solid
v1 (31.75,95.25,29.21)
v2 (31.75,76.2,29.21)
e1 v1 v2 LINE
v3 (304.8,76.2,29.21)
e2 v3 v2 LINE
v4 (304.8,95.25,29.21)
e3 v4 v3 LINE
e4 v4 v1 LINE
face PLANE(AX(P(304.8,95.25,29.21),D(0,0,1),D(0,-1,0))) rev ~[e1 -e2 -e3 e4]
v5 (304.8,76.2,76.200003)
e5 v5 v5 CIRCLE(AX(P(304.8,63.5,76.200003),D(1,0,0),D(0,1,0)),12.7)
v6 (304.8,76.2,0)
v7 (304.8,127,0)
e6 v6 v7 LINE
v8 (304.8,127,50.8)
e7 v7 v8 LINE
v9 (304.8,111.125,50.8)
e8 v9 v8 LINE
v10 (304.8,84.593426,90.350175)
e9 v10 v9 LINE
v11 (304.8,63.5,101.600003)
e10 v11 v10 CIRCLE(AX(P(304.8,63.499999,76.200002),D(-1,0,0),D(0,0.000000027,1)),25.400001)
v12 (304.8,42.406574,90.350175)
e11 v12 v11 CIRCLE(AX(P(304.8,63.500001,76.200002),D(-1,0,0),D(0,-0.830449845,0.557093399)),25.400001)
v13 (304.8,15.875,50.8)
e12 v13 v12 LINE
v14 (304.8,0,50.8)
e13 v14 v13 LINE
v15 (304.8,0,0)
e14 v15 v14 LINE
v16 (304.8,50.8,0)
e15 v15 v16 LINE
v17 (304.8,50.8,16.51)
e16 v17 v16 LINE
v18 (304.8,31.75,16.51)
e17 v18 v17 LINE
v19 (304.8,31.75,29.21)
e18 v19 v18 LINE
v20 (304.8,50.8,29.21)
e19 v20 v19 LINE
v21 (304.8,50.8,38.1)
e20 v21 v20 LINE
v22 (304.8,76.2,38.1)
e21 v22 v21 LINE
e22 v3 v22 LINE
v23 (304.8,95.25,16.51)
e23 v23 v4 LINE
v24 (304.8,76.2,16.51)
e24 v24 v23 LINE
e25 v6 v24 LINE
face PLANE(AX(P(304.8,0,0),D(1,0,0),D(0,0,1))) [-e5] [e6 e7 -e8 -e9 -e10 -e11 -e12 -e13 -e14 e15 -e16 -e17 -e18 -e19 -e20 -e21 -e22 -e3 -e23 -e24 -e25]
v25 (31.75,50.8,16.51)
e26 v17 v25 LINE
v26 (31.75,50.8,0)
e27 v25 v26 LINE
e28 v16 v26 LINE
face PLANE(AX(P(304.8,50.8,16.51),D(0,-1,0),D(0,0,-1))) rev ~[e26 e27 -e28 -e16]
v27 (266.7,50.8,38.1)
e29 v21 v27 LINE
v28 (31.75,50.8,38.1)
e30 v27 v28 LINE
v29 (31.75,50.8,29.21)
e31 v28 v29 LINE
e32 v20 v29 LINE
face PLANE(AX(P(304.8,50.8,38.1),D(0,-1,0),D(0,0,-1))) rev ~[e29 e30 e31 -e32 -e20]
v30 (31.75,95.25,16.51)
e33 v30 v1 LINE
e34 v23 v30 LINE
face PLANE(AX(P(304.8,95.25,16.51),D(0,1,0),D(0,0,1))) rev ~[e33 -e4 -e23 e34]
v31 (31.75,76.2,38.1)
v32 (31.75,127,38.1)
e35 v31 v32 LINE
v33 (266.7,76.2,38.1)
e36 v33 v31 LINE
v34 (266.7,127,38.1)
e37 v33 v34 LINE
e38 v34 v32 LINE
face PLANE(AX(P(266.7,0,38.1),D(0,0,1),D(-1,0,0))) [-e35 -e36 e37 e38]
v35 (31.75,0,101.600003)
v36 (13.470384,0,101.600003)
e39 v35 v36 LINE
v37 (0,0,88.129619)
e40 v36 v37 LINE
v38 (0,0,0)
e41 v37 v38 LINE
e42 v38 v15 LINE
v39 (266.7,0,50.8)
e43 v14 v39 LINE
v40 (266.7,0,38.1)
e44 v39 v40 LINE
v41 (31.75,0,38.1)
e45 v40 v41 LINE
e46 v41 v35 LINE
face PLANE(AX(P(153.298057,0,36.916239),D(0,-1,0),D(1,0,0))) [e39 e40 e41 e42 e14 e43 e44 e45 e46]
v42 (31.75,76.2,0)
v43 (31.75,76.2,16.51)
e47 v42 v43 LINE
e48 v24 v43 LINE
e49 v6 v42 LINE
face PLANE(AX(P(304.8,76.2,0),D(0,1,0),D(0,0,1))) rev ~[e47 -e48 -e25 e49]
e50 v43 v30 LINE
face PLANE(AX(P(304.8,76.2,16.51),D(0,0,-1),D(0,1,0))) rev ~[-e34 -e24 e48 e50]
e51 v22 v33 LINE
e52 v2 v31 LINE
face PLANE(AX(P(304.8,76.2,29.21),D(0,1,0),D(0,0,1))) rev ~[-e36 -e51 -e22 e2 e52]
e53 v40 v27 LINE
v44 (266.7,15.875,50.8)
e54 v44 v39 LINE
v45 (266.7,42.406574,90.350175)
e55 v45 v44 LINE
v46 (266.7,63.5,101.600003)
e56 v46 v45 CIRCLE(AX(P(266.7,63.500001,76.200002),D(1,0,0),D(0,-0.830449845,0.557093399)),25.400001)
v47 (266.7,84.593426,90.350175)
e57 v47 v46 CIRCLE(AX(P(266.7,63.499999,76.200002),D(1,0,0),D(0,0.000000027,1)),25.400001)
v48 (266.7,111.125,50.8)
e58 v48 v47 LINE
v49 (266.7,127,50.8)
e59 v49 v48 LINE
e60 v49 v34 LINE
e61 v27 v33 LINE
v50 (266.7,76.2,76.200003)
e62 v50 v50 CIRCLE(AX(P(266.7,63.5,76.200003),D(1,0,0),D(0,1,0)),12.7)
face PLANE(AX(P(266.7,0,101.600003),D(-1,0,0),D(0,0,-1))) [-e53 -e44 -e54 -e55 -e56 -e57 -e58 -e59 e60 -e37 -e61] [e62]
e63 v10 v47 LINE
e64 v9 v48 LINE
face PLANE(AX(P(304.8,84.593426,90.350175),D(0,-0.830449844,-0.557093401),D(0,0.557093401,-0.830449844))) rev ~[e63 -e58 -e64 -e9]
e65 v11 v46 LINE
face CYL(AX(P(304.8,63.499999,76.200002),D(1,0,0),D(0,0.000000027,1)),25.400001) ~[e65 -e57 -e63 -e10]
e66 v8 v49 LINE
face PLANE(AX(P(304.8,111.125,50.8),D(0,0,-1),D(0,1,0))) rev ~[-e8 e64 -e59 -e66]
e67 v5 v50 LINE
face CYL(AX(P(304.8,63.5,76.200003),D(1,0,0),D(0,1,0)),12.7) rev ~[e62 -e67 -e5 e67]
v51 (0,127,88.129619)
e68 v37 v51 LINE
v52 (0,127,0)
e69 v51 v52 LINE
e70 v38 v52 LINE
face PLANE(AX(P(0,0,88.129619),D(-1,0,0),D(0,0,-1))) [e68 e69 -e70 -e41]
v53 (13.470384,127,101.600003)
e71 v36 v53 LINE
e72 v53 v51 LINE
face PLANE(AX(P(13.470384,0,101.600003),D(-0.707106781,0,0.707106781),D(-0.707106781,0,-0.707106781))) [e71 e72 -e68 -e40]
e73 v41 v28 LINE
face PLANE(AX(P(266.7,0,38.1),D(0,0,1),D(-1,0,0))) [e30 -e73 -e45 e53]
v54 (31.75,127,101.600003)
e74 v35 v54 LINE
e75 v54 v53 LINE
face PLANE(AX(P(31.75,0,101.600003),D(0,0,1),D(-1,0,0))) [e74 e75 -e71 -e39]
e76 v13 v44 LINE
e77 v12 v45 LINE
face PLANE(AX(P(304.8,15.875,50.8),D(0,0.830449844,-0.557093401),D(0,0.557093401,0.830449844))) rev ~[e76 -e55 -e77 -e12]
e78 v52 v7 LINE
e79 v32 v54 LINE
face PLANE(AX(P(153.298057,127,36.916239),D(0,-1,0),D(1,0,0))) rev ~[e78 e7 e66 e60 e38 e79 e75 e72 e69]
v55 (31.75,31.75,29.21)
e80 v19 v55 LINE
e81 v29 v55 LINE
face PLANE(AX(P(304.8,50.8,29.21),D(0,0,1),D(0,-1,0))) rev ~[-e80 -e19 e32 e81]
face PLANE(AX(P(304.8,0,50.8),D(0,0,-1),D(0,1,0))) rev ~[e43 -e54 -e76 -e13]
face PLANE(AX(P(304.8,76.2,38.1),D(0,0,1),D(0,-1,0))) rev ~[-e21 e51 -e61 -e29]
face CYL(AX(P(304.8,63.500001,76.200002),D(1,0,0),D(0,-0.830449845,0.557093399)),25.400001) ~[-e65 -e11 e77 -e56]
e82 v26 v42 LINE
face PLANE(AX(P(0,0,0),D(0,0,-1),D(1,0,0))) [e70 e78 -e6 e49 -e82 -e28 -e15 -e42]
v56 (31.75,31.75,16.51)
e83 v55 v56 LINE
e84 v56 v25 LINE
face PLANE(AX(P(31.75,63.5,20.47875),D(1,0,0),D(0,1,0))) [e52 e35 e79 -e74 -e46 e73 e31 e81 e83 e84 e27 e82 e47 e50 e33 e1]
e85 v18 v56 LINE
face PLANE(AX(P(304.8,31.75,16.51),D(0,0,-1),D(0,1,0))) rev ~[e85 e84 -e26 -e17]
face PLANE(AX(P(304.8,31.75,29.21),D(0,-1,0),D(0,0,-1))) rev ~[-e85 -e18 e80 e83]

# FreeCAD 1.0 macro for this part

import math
import FreeCAD as App
import Part
import Sketcher
Q = App.Units.Quantity

doc = App.newDocument("Part")
params = doc.addObject("Spreadsheet::Sheet", "Params")
for row, (alias, value) in enumerate([
    ("sketch1_width", "12 in"),
    ("sketch1_height", "4.0000001 in"),
    ("sketch1_width2", "1.5 in"),
    ("sketch1_height2", "2.5000001 in"),
    ("sketch1_width3", "9.25 in"),
    ("pad1_length", "5 in"),
    ("sketch2_width", "1 in"),
    ("sketch2_height", "0.5 in"),
    ("sketch2_width2", "0.75 in"),
    ("sketch2_height2", "0.65 in"),
    ("sketch2_height3", "0.35 in"),
    ("pocket1_length", "10.75 in"),
    ("sketch3_diameter", "1 in"),
    ("pocket2_length", "2 in"),
    ("sketch4_radius", "1 in"),
    ("sketch4_height", "2.0000001 in"),
    ("sketch4_width", "2.5 in"),
    ("sketch4_width2", "0.625 in"),
    ("pocket3_length", "2 in"),
], start=1):
    params.set(f"A{row}", alias)
    params.set(f"B{row}", "=" + value)
    params.setAlias(f"B{row}", alias)

body = doc.addObject("PartDesign::Body", "Body")

sketch1 = doc.addObject("Sketcher::SketchObject", "Sketch")
body.addObject(sketch1)
sketch1.AttachmentSupport = (doc.XZ_Plane, [""])
sketch1.MapMode = "FlatFace"
sketch1.addGeometry(Part.LineSegment(App.Vector(0, 88.129619, 0), App.Vector(0, 0, 0)), False)
sketch1.addGeometry(Part.LineSegment(App.Vector(0, 0, 0), App.Vector(304.8, 0, 0)), False)
sketch1.addGeometry(Part.LineSegment(App.Vector(304.8, 0, 0), App.Vector(304.8, 101.600003, 0)), False)
sketch1.addGeometry(Part.LineSegment(App.Vector(304.8, 101.600003, 0), App.Vector(266.7, 101.600003, 0)), False)
sketch1.addGeometry(Part.LineSegment(App.Vector(266.7, 101.600003, 0), App.Vector(266.7, 38.1, 0)), False)
sketch1.addGeometry(Part.LineSegment(App.Vector(266.7, 38.1, 0), App.Vector(31.75, 38.1, 0)), False)
sketch1.addGeometry(Part.LineSegment(App.Vector(31.75, 38.1, 0), App.Vector(31.75, 101.600003, 0)), False)
sketch1.addGeometry(Part.LineSegment(App.Vector(31.75, 101.600003, 0), App.Vector(13.470384, 101.600003, 0)), False)
sketch1.addGeometry(Part.LineSegment(App.Vector(13.470384, 101.600003, 0), App.Vector(0, 88.129619, 0)), False)
sketch1.addConstraint(Sketcher.Constraint("Coincident", 0, 2, 1, 1))
sketch1.addConstraint(Sketcher.Constraint("Coincident", 1, 2, 2, 1))
sketch1.addConstraint(Sketcher.Constraint("Coincident", 2, 2, 3, 1))
sketch1.addConstraint(Sketcher.Constraint("Coincident", 3, 2, 4, 1))
sketch1.addConstraint(Sketcher.Constraint("Coincident", 4, 2, 5, 1))
sketch1.addConstraint(Sketcher.Constraint("Coincident", 5, 2, 6, 1))
sketch1.addConstraint(Sketcher.Constraint("Coincident", 6, 2, 7, 1))
sketch1.addConstraint(Sketcher.Constraint("Coincident", 7, 2, 8, 1))
sketch1.addConstraint(Sketcher.Constraint("Coincident", 8, 2, 0, 1))
sketch1.addConstraint(Sketcher.Constraint("Vertical", 0))
sketch1.addConstraint(Sketcher.Constraint("Horizontal", 1))
sketch1.addConstraint(Sketcher.Constraint("Vertical", 2))
sketch1.addConstraint(Sketcher.Constraint("Horizontal", 3))
sketch1.addConstraint(Sketcher.Constraint("Vertical", 4))
sketch1.addConstraint(Sketcher.Constraint("Horizontal", 5))
sketch1.addConstraint(Sketcher.Constraint("Vertical", 6))
sketch1.addConstraint(Sketcher.Constraint("Horizontal", 7))
sketch1.addConstraint(Sketcher.Constraint("Coincident", 0, 2, -1, 1))
sketch1.addConstraint(Sketcher.Constraint("Horizontal", 3, 2, 6, 2))
sketch1.addConstraint(Sketcher.Constraint("DistanceX", 1, 1, 1, 2, Q("12 in")))
sketch1.addConstraint(Sketcher.Constraint("DistanceY", 2, 1, 2, 2, Q("4.0000001 in")))
sketch1.addConstraint(Sketcher.Constraint("DistanceX", 3, 2, 3, 1, Q("1.5 in")))
sketch1.addConstraint(Sketcher.Constraint("DistanceY", 4, 2, 4, 1, Q("2.5000001 in")))
sketch1.addConstraint(Sketcher.Constraint("Angle", 8, Q("-135 deg")))
sketch1.addConstraint(Sketcher.Constraint("DistanceX", 5, 2, 5, 1, Q("9.25 in")))
sketch1.addConstraint(Sketcher.Constraint("Distance", 8, Q("0.75 in")))
sketch1.setExpression("Constraints[19]", "Params.sketch1_width")
sketch1.setExpression("Constraints[20]", "Params.sketch1_height")
sketch1.setExpression("Constraints[21]", "Params.sketch1_width2")
sketch1.setExpression("Constraints[22]", "Params.sketch1_height2")
sketch1.setExpression("Constraints[24]", "Params.sketch1_width3")
pad1 = doc.addObject("PartDesign::Pad", "Pad")
body.addObject(pad1)
pad1.Profile = sketch1
pad1.setExpression("Length", "Params.pad1_length")
pad1.Reversed = True

sketch2 = doc.addObject("Sketcher::SketchObject", "Sketch001")
body.addObject(sketch2)
sketch2.AttachmentSupport = (doc.YZ_Plane, [""])
sketch2.MapMode = "FlatFace"
sketch2.AttachmentOffset = App.Placement(App.Vector(0, 0, 12 * 25.4), App.Rotation())
sketch2.addGeometry(Part.LineSegment(App.Vector(50.8, 16.51, 0), App.Vector(50.8, 0, 0)), False)
sketch2.addGeometry(Part.LineSegment(App.Vector(50.8, 0, 0), App.Vector(76.2, 0, 0)), False)
sketch2.addGeometry(Part.LineSegment(App.Vector(76.2, 0, 0), App.Vector(76.2, 16.51, 0)), False)
sketch2.addGeometry(Part.LineSegment(App.Vector(76.2, 16.51, 0), App.Vector(95.25, 16.51, 0)), False)
sketch2.addGeometry(Part.LineSegment(App.Vector(95.25, 16.51, 0), App.Vector(95.25, 29.21, 0)), False)
sketch2.addGeometry(Part.LineSegment(App.Vector(95.25, 29.21, 0), App.Vector(76.2, 29.21, 0)), False)
sketch2.addGeometry(Part.LineSegment(App.Vector(76.2, 29.21, 0), App.Vector(76.2, 38.1, 0)), False)
sketch2.addGeometry(Part.LineSegment(App.Vector(76.2, 38.1, 0), App.Vector(50.8, 38.1, 0)), False)
sketch2.addGeometry(Part.LineSegment(App.Vector(50.8, 38.1, 0), App.Vector(50.8, 29.21, 0)), False)
sketch2.addGeometry(Part.LineSegment(App.Vector(50.8, 29.21, 0), App.Vector(31.75, 29.21, 0)), False)
sketch2.addGeometry(Part.LineSegment(App.Vector(31.75, 29.21, 0), App.Vector(31.75, 16.51, 0)), False)
sketch2.addGeometry(Part.LineSegment(App.Vector(31.75, 16.51, 0), App.Vector(50.8, 16.51, 0)), False)
sketch2.addConstraint(Sketcher.Constraint("Coincident", 0, 2, 1, 1))
sketch2.addConstraint(Sketcher.Constraint("Coincident", 1, 2, 2, 1))
sketch2.addConstraint(Sketcher.Constraint("Coincident", 2, 2, 3, 1))
sketch2.addConstraint(Sketcher.Constraint("Coincident", 3, 2, 4, 1))
sketch2.addConstraint(Sketcher.Constraint("Coincident", 4, 2, 5, 1))
sketch2.addConstraint(Sketcher.Constraint("Coincident", 5, 2, 6, 1))
sketch2.addConstraint(Sketcher.Constraint("Coincident", 6, 2, 7, 1))
sketch2.addConstraint(Sketcher.Constraint("Coincident", 7, 2, 8, 1))
sketch2.addConstraint(Sketcher.Constraint("Coincident", 8, 2, 9, 1))
sketch2.addConstraint(Sketcher.Constraint("Coincident", 9, 2, 10, 1))
sketch2.addConstraint(Sketcher.Constraint("Coincident", 10, 2, 11, 1))
sketch2.addConstraint(Sketcher.Constraint("Coincident", 11, 2, 0, 1))
sketch2.addConstraint(Sketcher.Constraint("Vertical", 0))
sketch2.addConstraint(Sketcher.Constraint("Horizontal", 1))
sketch2.addConstraint(Sketcher.Constraint("Vertical", 2))
sketch2.addConstraint(Sketcher.Constraint("Horizontal", 3))
sketch2.addConstraint(Sketcher.Constraint("Vertical", 4))
sketch2.addConstraint(Sketcher.Constraint("Horizontal", 5))
sketch2.addConstraint(Sketcher.Constraint("Vertical", 6))
sketch2.addConstraint(Sketcher.Constraint("Horizontal", 7))
sketch2.addConstraint(Sketcher.Constraint("Vertical", 8))
sketch2.addConstraint(Sketcher.Constraint("Horizontal", 9))
sketch2.addConstraint(Sketcher.Constraint("Vertical", 10))
sketch2.addConstraint(Sketcher.Constraint("Horizontal", 11))
sketch2.addConstraint(Sketcher.Constraint("PointOnObject", 0, 2, -1))
sketch2.addConstraint(Sketcher.Constraint("Horizontal", 5, 2, 8, 2))
sketch2.addConstraint(Sketcher.Constraint("Horizontal", 3, 2, 10, 2))
sketch2.addConstraint(Sketcher.Constraint("Vertical", 2, 2, 5, 2))
sketch2.addConstraint(Sketcher.Constraint("Vertical", 0, 2, 7, 2))
sketch2.addConstraint(Sketcher.Constraint("Equal", 5, 9))
sketch2.addConstraint(Sketcher.Constraint("DistanceX", 1, 1, 1, 2, Q("1 in")))
sketch2.addConstraint(Sketcher.Constraint("DistanceY", 4, 1, 4, 2, Q("0.5 in")))
sketch2.addConstraint(Sketcher.Constraint("DistanceX", -1, 1, 0, 2, Q("2 in")))
sketch2.addConstraint(Sketcher.Constraint("DistanceX", 3, 1, 3, 2, Q("0.75 in")))
sketch2.addConstraint(Sketcher.Constraint("DistanceY", 0, 2, 0, 1, Q("0.65 in")))
sketch2.addConstraint(Sketcher.Constraint("DistanceY", 6, 1, 6, 2, Q("0.35 in")))
sketch2.setExpression("Constraints[30]", "Params.sketch2_width")
sketch2.setExpression("Constraints[31]", "Params.sketch2_height")
sketch2.setExpression("Constraints[33]", "Params.sketch2_width2")
sketch2.setExpression("Constraints[34]", "Params.sketch2_height2")
sketch2.setExpression("Constraints[35]", "Params.sketch2_height3")
pocket1 = doc.addObject("PartDesign::Pocket", "Pocket")
body.addObject(pocket1)
pocket1.Profile = sketch2
pocket1.setExpression("Length", "Params.pocket1_length")

sketch3 = doc.addObject("Sketcher::SketchObject", "Sketch002")
body.addObject(sketch3)
sketch3.AttachmentSupport = (doc.YZ_Plane, [""])
sketch3.MapMode = "FlatFace"
sketch3.AttachmentOffset = App.Placement(App.Vector(0, 0, 12 * 25.4), App.Rotation())
sketch3.addGeometry(Part.Circle(App.Vector(63.5, 76.200003, 0), App.Vector(0, 0, 1), 12.7), False)
sketch3.addConstraint(Sketcher.Constraint("Diameter", 0, Q("1 in")))
sketch3.addConstraint(Sketcher.Constraint("DistanceY", -1, 1, 0, 3, Q("3.0000001 in")))
sketch3.addConstraint(Sketcher.Constraint("DistanceX", -1, 1, 0, 3, Q("2.5 in")))
sketch3.setExpression("Constraints[0]", "Params.sketch3_diameter")
pocket2 = doc.addObject("PartDesign::Pocket", "Pocket001")
body.addObject(pocket2)
pocket2.Profile = sketch3
pocket2.setExpression("Length", "Params.pocket2_length")

sketch4 = doc.addObject("Sketcher::SketchObject", "Sketch003")
body.addObject(sketch4)
sketch4.AttachmentSupport = (doc.YZ_Plane, [""])
sketch4.MapMode = "FlatFace"
sketch4.AttachmentOffset = App.Placement(App.Vector(0, 0, 12 * 25.4), App.Rotation())
sketch4.addGeometry(Part.LineSegment(App.Vector(0, 101.600003, 0), App.Vector(0, 50.8, 0)), False)
sketch4.addGeometry(Part.LineSegment(App.Vector(0, 50.8, 0), App.Vector(15.875, 50.8, 0)), False)
sketch4.addGeometry(Part.LineSegment(App.Vector(15.875, 50.8, 0), App.Vector(42.406574, 90.350175, 0)), False)
sketch4.addGeometry(Part.ArcOfCircle(Part.Circle(App.Vector(63.500001, 76.200002, 0), App.Vector(0, 0, 1), 25.400001), math.radians(90.000002), math.radians(146.144976)), False)
sketch4.addGeometry(Part.LineSegment(App.Vector(63.5, 101.600003, 0), App.Vector(0, 101.600003, 0)), False)
sketch4.addGeometry(Part.LineSegment(App.Vector(127, 101.600003, 0), App.Vector(63.5, 101.600003, 0)), False)
sketch4.addGeometry(Part.ArcOfCircle(Part.Circle(App.Vector(63.499999, 76.200002, 0), App.Vector(0, 0, 1), 25.400001), math.radians(33.855024), math.radians(89.999998)), False)
sketch4.addGeometry(Part.LineSegment(App.Vector(84.593426, 90.350175, 0), App.Vector(111.125, 50.8, 0)), False)
sketch4.addGeometry(Part.LineSegment(App.Vector(111.125, 50.8, 0), App.Vector(127, 50.8, 0)), False)
sketch4.addGeometry(Part.LineSegment(App.Vector(127, 50.8, 0), App.Vector(127, 101.600003, 0)), False)
sketch4.addConstraint(Sketcher.Constraint("Coincident", 0, 2, 1, 1))
sketch4.addConstraint(Sketcher.Constraint("Coincident", 1, 2, 2, 1))
sketch4.addConstraint(Sketcher.Constraint("Tangent", 2, 2, 3, 2))
sketch4.addConstraint(Sketcher.Constraint("Tangent", 3, 1, 4, 1))
sketch4.addConstraint(Sketcher.Constraint("Coincident", 4, 2, 0, 1))
sketch4.addConstraint(Sketcher.Constraint("Tangent", 5, 2, 6, 2))
sketch4.addConstraint(Sketcher.Constraint("Tangent", 6, 1, 7, 1))
sketch4.addConstraint(Sketcher.Constraint("Coincident", 7, 2, 8, 1))
sketch4.addConstraint(Sketcher.Constraint("Coincident", 8, 2, 9, 1))
sketch4.addConstraint(Sketcher.Constraint("Coincident", 9, 2, 5, 1))
sketch4.addConstraint(Sketcher.Constraint("Vertical", 0))
sketch4.addConstraint(Sketcher.Constraint("Horizontal", 1))
sketch4.addConstraint(Sketcher.Constraint("Horizontal", 4))
sketch4.addConstraint(Sketcher.Constraint("Horizontal", 5))
sketch4.addConstraint(Sketcher.Constraint("Horizontal", 8))
sketch4.addConstraint(Sketcher.Constraint("Vertical", 9))
sketch4.addConstraint(Sketcher.Constraint("Coincident", 6, 3, 3, 3))
sketch4.addConstraint(Sketcher.Constraint("Equal", 3, 6))
sketch4.addConstraint(Sketcher.Constraint("PointOnObject", 0, 2, -2))
sketch4.addConstraint(Sketcher.Constraint("Horizontal", 2, 2, 6, 1))
sketch4.addConstraint(Sketcher.Constraint("Horizontal", 1, 2, 7, 2))
sketch4.addConstraint(Sketcher.Constraint("Equal", 4, 5))
sketch4.addConstraint(Sketcher.Constraint("Radius", 3, Q("1 in")))
sketch4.addConstraint(Sketcher.Constraint("DistanceY", 0, 2, 0, 1, Q("2.0000001 in")))
sketch4.addConstraint(Sketcher.Constraint("DistanceX", 4, 2, 4, 1, Q("2.5 in")))
sketch4.addConstraint(Sketcher.Constraint("DistanceY", -1, 1, 3, 3, Q("3.0000001 in")))
sketch4.addConstraint(Sketcher.Constraint("DistanceX", 1, 1, 1, 2, Q("0.625 in")))
sketch4.setExpression("Constraints[22]", "Params.sketch4_radius")
sketch4.setExpression("Constraints[23]", "Params.sketch4_height")
sketch4.setExpression("Constraints[24]", "Params.sketch4_width")
sketch4.setExpression("Constraints[26]", "Params.sketch4_width2")
pocket3 = doc.addObject("PartDesign::Pocket", "Pocket002")
body.addObject(pocket3)
pocket3.Profile = sketch4
pocket3.setExpression("Length", "Params.pocket3_length")

doc.recompute()
